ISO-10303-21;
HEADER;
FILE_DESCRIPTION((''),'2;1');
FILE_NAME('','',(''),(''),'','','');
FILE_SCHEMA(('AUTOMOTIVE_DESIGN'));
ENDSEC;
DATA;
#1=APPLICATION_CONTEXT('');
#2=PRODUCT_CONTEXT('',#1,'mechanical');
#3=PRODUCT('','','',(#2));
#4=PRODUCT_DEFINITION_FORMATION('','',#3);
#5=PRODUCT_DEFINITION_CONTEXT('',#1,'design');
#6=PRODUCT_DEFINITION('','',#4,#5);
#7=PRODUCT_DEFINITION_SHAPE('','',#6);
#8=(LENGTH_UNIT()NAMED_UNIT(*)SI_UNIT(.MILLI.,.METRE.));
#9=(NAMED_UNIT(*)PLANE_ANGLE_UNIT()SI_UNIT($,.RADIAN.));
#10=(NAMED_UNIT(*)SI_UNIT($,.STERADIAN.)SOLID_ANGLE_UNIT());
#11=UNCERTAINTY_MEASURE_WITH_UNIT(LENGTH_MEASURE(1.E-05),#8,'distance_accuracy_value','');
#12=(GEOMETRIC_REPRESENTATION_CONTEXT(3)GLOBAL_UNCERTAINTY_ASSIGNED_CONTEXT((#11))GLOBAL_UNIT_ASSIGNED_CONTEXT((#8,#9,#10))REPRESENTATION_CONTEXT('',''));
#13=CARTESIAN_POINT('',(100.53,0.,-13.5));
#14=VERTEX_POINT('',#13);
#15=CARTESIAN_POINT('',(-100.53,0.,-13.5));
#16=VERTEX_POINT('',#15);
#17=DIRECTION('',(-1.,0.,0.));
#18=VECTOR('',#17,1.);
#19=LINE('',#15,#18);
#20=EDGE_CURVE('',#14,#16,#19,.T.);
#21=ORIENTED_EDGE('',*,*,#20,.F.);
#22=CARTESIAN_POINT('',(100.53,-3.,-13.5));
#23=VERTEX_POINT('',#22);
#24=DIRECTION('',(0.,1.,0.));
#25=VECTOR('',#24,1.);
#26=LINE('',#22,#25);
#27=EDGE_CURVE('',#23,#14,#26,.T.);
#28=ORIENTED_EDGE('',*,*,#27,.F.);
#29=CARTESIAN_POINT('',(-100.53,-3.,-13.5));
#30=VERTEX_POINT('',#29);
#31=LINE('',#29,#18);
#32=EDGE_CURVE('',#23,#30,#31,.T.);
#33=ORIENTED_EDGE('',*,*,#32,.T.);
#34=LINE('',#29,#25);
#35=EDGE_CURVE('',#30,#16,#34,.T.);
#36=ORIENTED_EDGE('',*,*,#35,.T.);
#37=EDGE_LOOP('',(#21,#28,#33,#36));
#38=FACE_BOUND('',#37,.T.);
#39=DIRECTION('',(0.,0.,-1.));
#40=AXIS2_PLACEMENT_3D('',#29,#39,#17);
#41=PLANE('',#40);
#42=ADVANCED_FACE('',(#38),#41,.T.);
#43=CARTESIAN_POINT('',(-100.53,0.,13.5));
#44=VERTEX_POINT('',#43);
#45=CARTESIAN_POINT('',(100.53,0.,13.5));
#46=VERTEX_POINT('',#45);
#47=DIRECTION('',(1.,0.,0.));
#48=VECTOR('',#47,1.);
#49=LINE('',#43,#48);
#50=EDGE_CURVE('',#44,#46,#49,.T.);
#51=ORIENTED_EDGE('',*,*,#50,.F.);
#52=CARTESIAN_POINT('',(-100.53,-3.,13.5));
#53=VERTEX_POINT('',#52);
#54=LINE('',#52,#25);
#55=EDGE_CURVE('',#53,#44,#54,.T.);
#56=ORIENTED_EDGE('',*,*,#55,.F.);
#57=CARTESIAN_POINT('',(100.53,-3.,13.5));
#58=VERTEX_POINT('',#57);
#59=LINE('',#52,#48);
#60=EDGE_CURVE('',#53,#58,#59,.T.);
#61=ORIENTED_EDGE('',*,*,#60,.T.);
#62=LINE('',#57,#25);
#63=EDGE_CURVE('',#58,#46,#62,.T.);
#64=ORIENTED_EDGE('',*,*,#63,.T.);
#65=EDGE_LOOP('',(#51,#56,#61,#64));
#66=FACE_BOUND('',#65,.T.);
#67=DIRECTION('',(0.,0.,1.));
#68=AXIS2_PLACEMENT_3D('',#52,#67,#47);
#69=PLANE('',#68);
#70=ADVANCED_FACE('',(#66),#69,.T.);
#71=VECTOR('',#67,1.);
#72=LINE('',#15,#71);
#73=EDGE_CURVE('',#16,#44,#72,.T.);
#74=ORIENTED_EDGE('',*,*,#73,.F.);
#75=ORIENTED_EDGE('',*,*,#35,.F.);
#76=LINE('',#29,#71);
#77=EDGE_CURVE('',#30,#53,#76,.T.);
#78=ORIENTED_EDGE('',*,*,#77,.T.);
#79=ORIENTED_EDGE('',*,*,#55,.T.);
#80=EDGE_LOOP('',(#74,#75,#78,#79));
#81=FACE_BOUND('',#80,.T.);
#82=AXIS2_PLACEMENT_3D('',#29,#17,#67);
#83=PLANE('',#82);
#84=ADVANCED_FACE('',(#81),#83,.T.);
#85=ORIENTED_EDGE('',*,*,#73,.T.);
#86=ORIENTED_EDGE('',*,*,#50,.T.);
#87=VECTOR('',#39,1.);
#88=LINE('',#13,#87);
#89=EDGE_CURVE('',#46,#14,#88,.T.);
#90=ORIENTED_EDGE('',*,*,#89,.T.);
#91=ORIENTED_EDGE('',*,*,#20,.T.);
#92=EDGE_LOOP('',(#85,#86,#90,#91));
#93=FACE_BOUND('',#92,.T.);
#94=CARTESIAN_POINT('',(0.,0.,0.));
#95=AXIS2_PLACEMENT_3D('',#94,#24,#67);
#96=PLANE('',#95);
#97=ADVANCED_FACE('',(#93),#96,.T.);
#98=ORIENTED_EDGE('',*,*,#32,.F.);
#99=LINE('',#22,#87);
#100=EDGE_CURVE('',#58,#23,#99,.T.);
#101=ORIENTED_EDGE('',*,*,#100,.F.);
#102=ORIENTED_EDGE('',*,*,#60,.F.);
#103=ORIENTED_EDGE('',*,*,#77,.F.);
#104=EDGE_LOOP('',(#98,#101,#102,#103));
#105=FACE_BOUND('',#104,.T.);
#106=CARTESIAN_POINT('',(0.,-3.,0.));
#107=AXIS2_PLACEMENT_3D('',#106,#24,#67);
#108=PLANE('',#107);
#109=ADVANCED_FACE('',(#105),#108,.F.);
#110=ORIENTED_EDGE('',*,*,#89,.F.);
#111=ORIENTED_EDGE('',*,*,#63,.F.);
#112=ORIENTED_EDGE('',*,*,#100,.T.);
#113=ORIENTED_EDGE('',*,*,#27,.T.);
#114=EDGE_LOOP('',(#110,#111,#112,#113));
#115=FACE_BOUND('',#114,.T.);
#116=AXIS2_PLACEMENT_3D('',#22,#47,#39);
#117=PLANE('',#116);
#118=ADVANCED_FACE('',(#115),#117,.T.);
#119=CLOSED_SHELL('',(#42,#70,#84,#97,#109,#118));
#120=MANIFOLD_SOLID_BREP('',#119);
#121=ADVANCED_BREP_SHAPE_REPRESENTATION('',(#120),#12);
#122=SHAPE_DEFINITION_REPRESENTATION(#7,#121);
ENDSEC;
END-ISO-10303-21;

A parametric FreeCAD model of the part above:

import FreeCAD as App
import Part
import Sketcher

V = App.Vector
Q = App.Units.Quantity

doc = App.newDocument("Part")
body = doc.addObject("PartDesign::Body", "Body")

# Sketch on XZ plane
sketch1 = doc.addObject("Sketcher::SketchObject", "Sketch")
body.addObject(sketch1)
sketch1.AttachmentSupport = (doc.XZ_Plane, [""])
sketch1.MapMode = "FlatFace"
sketch1.addGeometry([
    Part.LineSegment(V(-101, -14, 0), V(-101, 14, 0)),
    Part.LineSegment(V(-101, 14, 0), V(101, 14, 0)),
    Part.LineSegment(V(101, 14, 0), V(101, -14, 0)),
    Part.LineSegment(V(101, -14, 0), V(-101, -14, 0)),
], False)
sketch1.addConstraint([
    Sketcher.Constraint("Coincident", 0, 2, 1, 1),
    Sketcher.Constraint("Coincident", 1, 2, 2, 1),
    Sketcher.Constraint("Coincident", 2, 2, 3, 1),
    Sketcher.Constraint("Coincident", 3, 2, 0, 1),
    Sketcher.Constraint("Vertical", 0),
    Sketcher.Constraint("Horizontal", 1),
    Sketcher.Constraint("Vertical", 2),
    Sketcher.Constraint("Horizontal", 3),
    Sketcher.Constraint("Symmetric", 0, 2, 2, 2, -1, 1),
    Sketcher.Constraint("DistanceY", 0, 1, 0, 2, Q("27 mm")),
    Sketcher.Constraint("DistanceX", 1, 1, 1, 2, Q("201.06 mm")),
])
pad1 = doc.addObject("PartDesign::Pad", "Pad")
body.addObject(pad1)
pad1.Profile = sketch1
pad1.Length = 3

doc.recompute()
